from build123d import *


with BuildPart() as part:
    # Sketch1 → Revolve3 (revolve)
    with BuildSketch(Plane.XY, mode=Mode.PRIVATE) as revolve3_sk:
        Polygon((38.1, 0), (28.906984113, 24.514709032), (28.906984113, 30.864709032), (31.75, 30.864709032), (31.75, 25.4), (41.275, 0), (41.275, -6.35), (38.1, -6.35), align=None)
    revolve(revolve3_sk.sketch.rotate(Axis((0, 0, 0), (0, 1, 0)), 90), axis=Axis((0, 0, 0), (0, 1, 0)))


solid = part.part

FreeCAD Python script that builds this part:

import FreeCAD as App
import Part
import Sketcher
from FreeCAD import Vector
Q = App.Units.Quantity

doc = App.newDocument("Part")
params = doc.addObject("Spreadsheet::Sheet", "Params")
for row, (alias, value) in enumerate([
    ("sketch1_height", "0.25 in"),
    ("sketch1_width", "0.125 in"),
    ("revolution_angle", "360 deg"),
], start=1):
    params.set(f"A{row}", alias)
    params.set(f"B{row}", "=" + value)
    params.setAlias(f"B{row}", alias)

body = doc.addObject("PartDesign::Body", "Body")

sketch1 = doc.addObject("Sketcher::SketchObject", "Sketch")
body.addObject(sketch1)
sketch1.AttachmentSupport = (doc.XY_Plane, [""])
sketch1.MapMode = "FlatFace"
sketch1.addGeometry(Part.LineSegment(Vector(28.9, 24.5, 0), Vector(38.1, 0, 0)), False)
sketch1.addGeometry(Part.LineSegment(Vector(38.1, 0, 0), Vector(38.1, -6.3, 0)), False)
sketch1.addGeometry(Part.LineSegment(Vector(38.1, -6.3, 0), Vector(41.3, -6.3, 0)), False)
sketch1.addGeometry(Part.LineSegment(Vector(41.3, -6.3, 0), Vector(41.3, 0, 0)), False)
sketch1.addGeometry(Part.LineSegment(Vector(41.3, 0, 0), Vector(31.8, 25.4, 0)), False)
sketch1.addGeometry(Part.LineSegment(Vector(31.8, 25.4, 0), Vector(31.8, 30.9, 0)), False)
sketch1.addGeometry(Part.LineSegment(Vector(31.8, 30.9, 0), Vector(28.9, 30.9, 0)), False)
sketch1.addGeometry(Part.LineSegment(Vector(28.9, 30.9, 0), Vector(28.9, 24.5, 0)), False)
sketch1.addConstraint(Sketcher.Constraint("Coincident", 0, 2, 1, 1))
sketch1.addConstraint(Sketcher.Constraint("Coincident", 1, 2, 2, 1))
sketch1.addConstraint(Sketcher.Constraint("Coincident", 2, 2, 3, 1))
sketch1.addConstraint(Sketcher.Constraint("Coincident", 3, 2, 4, 1))
sketch1.addConstraint(Sketcher.Constraint("Coincident", 4, 2, 5, 1))
sketch1.addConstraint(Sketcher.Constraint("Coincident", 5, 2, 6, 1))
sketch1.addConstraint(Sketcher.Constraint("Coincident", 6, 2, 7, 1))
sketch1.addConstraint(Sketcher.Constraint("Coincident", 7, 2, 0, 1))
sketch1.addConstraint(Sketcher.Constraint("Vertical", 1))
sketch1.addConstraint(Sketcher.Constraint("Horizontal", 2))
sketch1.addConstraint(Sketcher.Constraint("Vertical", 3))
sketch1.addConstraint(Sketcher.Constraint("Vertical", 5))
sketch1.addConstraint(Sketcher.Constraint("Horizontal", 6))
sketch1.addConstraint(Sketcher.Constraint("Vertical", 7))
sketch1.addConstraint(Sketcher.Constraint("PointOnObject", 0, 2, -1))
sketch1.addConstraint(Sketcher.Constraint("PointOnObject", 3, 2, -1))
sketch1.addConstraint(Sketcher.Constraint("Parallel", 0, 4))
sketch1.addConstraint(Sketcher.Constraint("Equal", 3, 7))
sketch1.addConstraint(Sketcher.Constraint("DistanceY", -1, 1, 4, 2, Q("1 in")))
sketch1.addConstraint(Sketcher.Constraint("DistanceY", 1, 2, 1, 1, Q("0.25 in")))
sketch1.addConstraint(Sketcher.Constraint("DistanceX", -1, 1, 0, 2, Q("1.5 in")))
sketch1.addConstraint(Sketcher.Constraint("DistanceX", 2, 1, 2, 2, Q("0.125 in")))
sketch1.addConstraint(Sketcher.Constraint("DistanceX", -1, 1, 4, 2, Q("1.25 in")))
sketch1.addConstraint(Sketcher.Constraint("DistanceY", 5, 1, 5, 2, Q("5.464709 mm")))
sketch1.setExpression("Constraints[19]", "Params.sketch1_height")
sketch1.setExpression("Constraints[21]", "Params.sketch1_width")
revolution = doc.addObject("PartDesign::Revolution", "Revolution")
body.addObject(revolution)
revolution.Profile = sketch1
revolution.ReferenceAxis = (sketch1, ["V_Axis"])
revolution.setExpression("Angle", "Params.revolution_angle")

doc.recompute()
